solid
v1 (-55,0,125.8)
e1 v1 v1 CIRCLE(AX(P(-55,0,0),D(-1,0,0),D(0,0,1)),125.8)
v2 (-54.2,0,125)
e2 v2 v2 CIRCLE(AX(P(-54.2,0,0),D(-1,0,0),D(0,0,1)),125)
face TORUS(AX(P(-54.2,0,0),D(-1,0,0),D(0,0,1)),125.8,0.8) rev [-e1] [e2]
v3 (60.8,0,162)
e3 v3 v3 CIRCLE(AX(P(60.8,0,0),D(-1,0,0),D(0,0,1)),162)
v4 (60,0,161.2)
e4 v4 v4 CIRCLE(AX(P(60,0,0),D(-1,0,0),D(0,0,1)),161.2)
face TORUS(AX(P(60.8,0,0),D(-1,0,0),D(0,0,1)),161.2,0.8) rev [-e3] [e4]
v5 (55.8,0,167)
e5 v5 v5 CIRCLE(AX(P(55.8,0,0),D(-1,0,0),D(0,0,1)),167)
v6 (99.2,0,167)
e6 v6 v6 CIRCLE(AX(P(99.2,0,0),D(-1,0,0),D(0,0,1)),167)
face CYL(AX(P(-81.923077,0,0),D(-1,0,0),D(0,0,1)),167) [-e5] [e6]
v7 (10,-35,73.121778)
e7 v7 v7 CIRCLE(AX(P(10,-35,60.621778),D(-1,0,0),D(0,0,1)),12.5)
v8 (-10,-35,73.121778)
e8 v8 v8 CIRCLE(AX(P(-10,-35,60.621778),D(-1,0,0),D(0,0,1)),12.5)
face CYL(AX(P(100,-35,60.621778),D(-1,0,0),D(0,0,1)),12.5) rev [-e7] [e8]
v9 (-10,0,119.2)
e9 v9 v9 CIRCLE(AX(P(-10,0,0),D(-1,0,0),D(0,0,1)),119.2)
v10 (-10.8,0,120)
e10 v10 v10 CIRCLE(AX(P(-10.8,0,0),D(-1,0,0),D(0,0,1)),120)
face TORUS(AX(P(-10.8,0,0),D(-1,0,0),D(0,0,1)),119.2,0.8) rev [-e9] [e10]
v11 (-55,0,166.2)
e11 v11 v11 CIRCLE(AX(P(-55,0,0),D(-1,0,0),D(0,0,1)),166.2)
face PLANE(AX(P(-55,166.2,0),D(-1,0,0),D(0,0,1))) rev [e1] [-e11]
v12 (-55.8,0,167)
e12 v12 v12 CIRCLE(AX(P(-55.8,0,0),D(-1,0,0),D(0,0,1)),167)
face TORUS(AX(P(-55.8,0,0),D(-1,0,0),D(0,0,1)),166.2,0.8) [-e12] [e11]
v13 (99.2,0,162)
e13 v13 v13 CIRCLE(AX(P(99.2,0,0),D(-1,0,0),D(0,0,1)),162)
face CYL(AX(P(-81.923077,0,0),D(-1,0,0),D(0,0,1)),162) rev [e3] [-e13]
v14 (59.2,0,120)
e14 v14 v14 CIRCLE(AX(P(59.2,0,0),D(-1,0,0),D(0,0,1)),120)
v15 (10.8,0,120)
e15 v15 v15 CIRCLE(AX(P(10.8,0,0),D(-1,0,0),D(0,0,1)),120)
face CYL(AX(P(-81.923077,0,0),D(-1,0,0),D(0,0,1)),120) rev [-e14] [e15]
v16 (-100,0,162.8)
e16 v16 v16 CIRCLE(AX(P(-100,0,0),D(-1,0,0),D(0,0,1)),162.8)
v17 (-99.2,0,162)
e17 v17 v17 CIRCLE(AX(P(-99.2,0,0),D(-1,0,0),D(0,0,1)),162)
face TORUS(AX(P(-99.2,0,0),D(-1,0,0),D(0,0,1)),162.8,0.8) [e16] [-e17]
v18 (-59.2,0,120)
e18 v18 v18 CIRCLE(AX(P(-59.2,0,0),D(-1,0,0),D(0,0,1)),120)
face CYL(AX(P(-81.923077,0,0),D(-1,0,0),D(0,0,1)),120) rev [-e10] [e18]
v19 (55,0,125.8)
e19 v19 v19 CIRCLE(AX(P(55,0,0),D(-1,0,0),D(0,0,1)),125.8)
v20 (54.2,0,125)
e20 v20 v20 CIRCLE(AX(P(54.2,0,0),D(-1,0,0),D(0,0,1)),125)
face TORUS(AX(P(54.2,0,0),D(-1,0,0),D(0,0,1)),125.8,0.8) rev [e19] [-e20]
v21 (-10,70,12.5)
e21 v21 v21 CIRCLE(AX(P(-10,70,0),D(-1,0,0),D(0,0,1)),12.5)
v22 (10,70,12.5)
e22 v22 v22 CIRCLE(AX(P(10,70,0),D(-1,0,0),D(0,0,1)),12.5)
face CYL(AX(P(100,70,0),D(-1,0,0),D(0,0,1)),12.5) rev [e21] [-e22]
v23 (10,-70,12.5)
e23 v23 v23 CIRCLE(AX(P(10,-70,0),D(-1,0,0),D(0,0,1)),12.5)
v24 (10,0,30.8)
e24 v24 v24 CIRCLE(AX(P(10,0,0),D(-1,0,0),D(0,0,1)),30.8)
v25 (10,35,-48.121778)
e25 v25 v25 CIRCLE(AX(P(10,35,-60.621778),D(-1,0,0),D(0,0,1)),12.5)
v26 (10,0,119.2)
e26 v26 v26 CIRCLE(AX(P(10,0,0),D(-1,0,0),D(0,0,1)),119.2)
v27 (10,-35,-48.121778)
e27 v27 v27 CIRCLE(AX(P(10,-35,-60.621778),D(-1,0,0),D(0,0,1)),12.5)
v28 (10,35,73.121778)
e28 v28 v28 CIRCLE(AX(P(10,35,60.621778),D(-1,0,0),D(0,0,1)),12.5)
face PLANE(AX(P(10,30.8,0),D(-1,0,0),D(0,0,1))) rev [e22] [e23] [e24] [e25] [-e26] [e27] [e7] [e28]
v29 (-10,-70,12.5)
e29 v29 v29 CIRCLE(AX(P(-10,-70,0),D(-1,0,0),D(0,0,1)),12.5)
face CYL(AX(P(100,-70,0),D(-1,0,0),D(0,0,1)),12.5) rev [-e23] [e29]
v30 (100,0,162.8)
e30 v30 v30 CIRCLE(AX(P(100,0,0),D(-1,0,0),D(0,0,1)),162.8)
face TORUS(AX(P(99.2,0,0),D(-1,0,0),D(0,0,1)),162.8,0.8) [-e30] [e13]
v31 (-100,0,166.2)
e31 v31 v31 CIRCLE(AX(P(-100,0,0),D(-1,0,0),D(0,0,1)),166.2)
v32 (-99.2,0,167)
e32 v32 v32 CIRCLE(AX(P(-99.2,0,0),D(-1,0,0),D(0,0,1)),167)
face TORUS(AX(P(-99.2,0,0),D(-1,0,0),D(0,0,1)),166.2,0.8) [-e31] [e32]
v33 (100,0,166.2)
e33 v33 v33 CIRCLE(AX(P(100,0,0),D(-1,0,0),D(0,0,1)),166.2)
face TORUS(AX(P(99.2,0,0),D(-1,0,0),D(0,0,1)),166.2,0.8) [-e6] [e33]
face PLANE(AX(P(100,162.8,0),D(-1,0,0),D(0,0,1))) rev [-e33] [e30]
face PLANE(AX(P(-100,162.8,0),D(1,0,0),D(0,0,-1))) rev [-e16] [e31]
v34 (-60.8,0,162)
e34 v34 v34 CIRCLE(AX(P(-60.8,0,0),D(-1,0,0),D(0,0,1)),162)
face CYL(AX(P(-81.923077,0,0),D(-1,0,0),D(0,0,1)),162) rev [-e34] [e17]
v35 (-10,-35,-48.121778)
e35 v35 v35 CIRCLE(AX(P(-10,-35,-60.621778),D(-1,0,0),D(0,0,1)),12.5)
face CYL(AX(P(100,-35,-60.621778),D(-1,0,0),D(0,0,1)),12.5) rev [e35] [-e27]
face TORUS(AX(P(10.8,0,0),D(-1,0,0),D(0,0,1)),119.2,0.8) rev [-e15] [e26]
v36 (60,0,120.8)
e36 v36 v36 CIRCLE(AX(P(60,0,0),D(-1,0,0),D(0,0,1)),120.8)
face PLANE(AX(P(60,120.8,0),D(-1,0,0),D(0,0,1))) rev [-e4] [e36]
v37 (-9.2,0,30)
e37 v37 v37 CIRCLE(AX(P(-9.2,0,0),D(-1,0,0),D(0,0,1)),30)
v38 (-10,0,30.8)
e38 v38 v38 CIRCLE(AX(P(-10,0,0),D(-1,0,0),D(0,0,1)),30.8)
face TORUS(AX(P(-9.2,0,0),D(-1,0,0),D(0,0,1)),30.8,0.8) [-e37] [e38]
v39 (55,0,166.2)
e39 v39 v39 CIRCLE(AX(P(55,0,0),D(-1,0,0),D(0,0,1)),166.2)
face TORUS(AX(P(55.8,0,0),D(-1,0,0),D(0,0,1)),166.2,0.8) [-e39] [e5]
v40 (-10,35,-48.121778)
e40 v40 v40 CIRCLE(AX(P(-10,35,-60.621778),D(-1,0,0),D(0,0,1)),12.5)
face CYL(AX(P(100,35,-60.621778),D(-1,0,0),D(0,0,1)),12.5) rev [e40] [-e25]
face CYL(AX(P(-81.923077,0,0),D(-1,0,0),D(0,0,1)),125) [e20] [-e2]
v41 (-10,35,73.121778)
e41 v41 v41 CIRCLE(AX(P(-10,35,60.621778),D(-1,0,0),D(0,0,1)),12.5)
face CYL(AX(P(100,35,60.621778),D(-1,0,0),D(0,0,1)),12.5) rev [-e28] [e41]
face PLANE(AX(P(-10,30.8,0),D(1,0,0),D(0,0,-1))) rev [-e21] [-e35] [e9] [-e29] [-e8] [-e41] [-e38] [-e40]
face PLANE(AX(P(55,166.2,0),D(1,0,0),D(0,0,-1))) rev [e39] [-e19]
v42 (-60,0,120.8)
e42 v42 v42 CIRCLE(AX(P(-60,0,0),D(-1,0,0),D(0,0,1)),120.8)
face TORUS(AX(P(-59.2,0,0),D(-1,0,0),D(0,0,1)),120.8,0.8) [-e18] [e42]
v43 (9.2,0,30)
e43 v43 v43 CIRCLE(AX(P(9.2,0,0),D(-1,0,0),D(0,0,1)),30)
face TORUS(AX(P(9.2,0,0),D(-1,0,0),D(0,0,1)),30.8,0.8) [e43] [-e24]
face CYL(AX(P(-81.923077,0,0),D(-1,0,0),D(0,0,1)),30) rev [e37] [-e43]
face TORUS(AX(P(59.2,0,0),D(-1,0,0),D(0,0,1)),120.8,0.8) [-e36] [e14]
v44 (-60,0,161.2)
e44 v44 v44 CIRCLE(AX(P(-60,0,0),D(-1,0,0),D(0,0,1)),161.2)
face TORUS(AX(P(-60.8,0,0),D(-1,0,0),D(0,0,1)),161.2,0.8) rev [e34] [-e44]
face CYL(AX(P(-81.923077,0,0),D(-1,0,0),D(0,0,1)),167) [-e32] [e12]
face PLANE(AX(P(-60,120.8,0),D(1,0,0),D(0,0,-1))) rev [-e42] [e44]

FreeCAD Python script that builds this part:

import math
import FreeCAD as App
import Part
import Sketcher
Q = App.Units.Quantity

doc = App.newDocument("Part")
body = doc.addObject("PartDesign::Body", "Body")

sketch1 = body.newObject("Sketcher::SketchObject", "Sketch")
sketch1.AttachmentSupport = (doc.getObject("XY_Plane"), [""])
sketch1.MapMode = "FlatFace"
sketch1.addGeometry(Part.LineSegment(App.Vector(-9.2, 30, 0), App.Vector(9.2, 30, 0)), False)
sketch1.addGeometry(Part.ArcOfCircle(Part.Circle(App.Vector(9.2, 30.8, 0), App.Vector(0, 0, 1), 0.8), math.radians(-90), math.radians(0)), False)
sketch1.addGeometry(Part.LineSegment(App.Vector(10, 30.8, 0), App.Vector(10, 119.2, 0)), False)
sketch1.addGeometry(Part.ArcOfCircle(Part.Circle(App.Vector(10.8, 119.2, 0), App.Vector(0, 0, 1), 0.8), math.radians(90), math.radians(180)), False)
sketch1.addGeometry(Part.LineSegment(App.Vector(10.8, 120, 0), App.Vector(59.2, 120, 0)), False)
sketch1.addGeometry(Part.ArcOfCircle(Part.Circle(App.Vector(59.2, 120.8, 0), App.Vector(0, 0, 1), 0.8), math.radians(-90), math.radians(0)), False)
sketch1.addGeometry(Part.LineSegment(App.Vector(60, 120.8, 0), App.Vector(60, 161.2, 0)), False)
sketch1.addGeometry(Part.ArcOfCircle(Part.Circle(App.Vector(60.8, 161.2, 0), App.Vector(0, 0, 1), 0.8), math.radians(90), math.radians(180)), False)
sketch1.addGeometry(Part.LineSegment(App.Vector(60.8, 162, 0), App.Vector(99.2, 162, 0)), False)
sketch1.addGeometry(Part.ArcOfCircle(Part.Circle(App.Vector(99.2, 162.8, 0), App.Vector(0, 0, 1), 0.8), math.radians(-90), math.radians(0)), False)
sketch1.addGeometry(Part.LineSegment(App.Vector(100, 162.8, 0), App.Vector(100, 166.2, 0)), False)
sketch1.addGeometry(Part.ArcOfCircle(Part.Circle(App.Vector(99.2, 166.2, 0), App.Vector(0, 0, 1), 0.8), math.radians(0), math.radians(90)), False)
sketch1.addGeometry(Part.LineSegment(App.Vector(99.2, 167, 0), App.Vector(55.8, 167, 0)), False)
sketch1.addGeometry(Part.ArcOfCircle(Part.Circle(App.Vector(55.8, 166.2, 0), App.Vector(0, 0, 1), 0.8), math.radians(90), math.radians(180)), False)
sketch1.addGeometry(Part.LineSegment(App.Vector(55, 166.2, 0), App.Vector(55, 125.8, 0)), False)
sketch1.addGeometry(Part.ArcOfCircle(Part.Circle(App.Vector(54.2, 125.8, 0), App.Vector(0, 0, 1), 0.8), math.radians(-90), math.radians(0)), False)
sketch1.addGeometry(Part.LineSegment(App.Vector(54.2, 125, 0), App.Vector(-54.2, 125, 0)), False)
sketch1.addGeometry(Part.ArcOfCircle(Part.Circle(App.Vector(-54.2, 125.8, 0), App.Vector(0, 0, 1), 0.8), math.radians(180), math.radians(270)), False)
sketch1.addGeometry(Part.LineSegment(App.Vector(-55, 125.8, 0), App.Vector(-55, 166.2, 0)), False)
sketch1.addGeometry(Part.ArcOfCircle(Part.Circle(App.Vector(-55.8, 166.2, 0), App.Vector(0, 0, 1), 0.8), math.radians(0), math.radians(90)), False)
sketch1.addGeometry(Part.LineSegment(App.Vector(-55.8, 167, 0), App.Vector(-99.2, 167, 0)), False)
sketch1.addGeometry(Part.ArcOfCircle(Part.Circle(App.Vector(-99.2, 166.2, 0), App.Vector(0, 0, 1), 0.8), math.radians(90), math.radians(180)), False)
sketch1.addGeometry(Part.LineSegment(App.Vector(-100, 166.2, 0), App.Vector(-100, 162.8, 0)), False)
sketch1.addGeometry(Part.ArcOfCircle(Part.Circle(App.Vector(-99.2, 162.8, 0), App.Vector(0, 0, 1), 0.8), math.radians(180), math.radians(270)), False)
sketch1.addGeometry(Part.LineSegment(App.Vector(-99.2, 162, 0), App.Vector(-60.8, 162, 0)), False)
sketch1.addGeometry(Part.ArcOfCircle(Part.Circle(App.Vector(-60.8, 161.2, 0), App.Vector(0, 0, 1), 0.8), math.radians(0), math.radians(90)), False)
sketch1.addGeometry(Part.LineSegment(App.Vector(-60, 161.2, 0), App.Vector(-60, 120.8, 0)), False)
sketch1.addGeometry(Part.ArcOfCircle(Part.Circle(App.Vector(-59.2, 120.8, 0), App.Vector(0, 0, 1), 0.8), math.radians(180), math.radians(270)), False)
sketch1.addGeometry(Part.LineSegment(App.Vector(-59.2, 120, 0), App.Vector(-10.8, 120, 0)), False)
sketch1.addGeometry(Part.ArcOfCircle(Part.Circle(App.Vector(-10.8, 119.2, 0), App.Vector(0, 0, 1), 0.8), math.radians(0), math.radians(90)), False)
sketch1.addGeometry(Part.LineSegment(App.Vector(-10, 119.2, 0), App.Vector(-10, 30.8, 0)), False)
sketch1.addGeometry(Part.ArcOfCircle(Part.Circle(App.Vector(-9.2, 30.8, 0), App.Vector(0, 0, 1), 0.8), math.radians(180), math.radians(270)), False)
sketch1.addConstraint(Sketcher.Constraint("Tangent", 0, 2, 1, 1))
sketch1.addConstraint(Sketcher.Constraint("Tangent", 1, 2, 2, 1))
sketch1.addConstraint(Sketcher.Constraint("Tangent", 2, 2, 3, 2))
sketch1.addConstraint(Sketcher.Constraint("Tangent", 3, 1, 4, 1))
sketch1.addConstraint(Sketcher.Constraint("Tangent", 4, 2, 5, 1))
sketch1.addConstraint(Sketcher.Constraint("Tangent", 5, 2, 6, 1))
sketch1.addConstraint(Sketcher.Constraint("Tangent", 6, 2, 7, 2))
sketch1.addConstraint(Sketcher.Constraint("Tangent", 7, 1, 8, 1))
sketch1.addConstraint(Sketcher.Constraint("Tangent", 8, 2, 9, 1))
sketch1.addConstraint(Sketcher.Constraint("Tangent", 9, 2, 10, 1))
sketch1.addConstraint(Sketcher.Constraint("Tangent", 10, 2, 11, 1))
sketch1.addConstraint(Sketcher.Constraint("Tangent", 11, 2, 12, 1))
sketch1.addConstraint(Sketcher.Constraint("Tangent", 12, 2, 13, 1))
sketch1.addConstraint(Sketcher.Constraint("Tangent", 13, 2, 14, 1))
sketch1.addConstraint(Sketcher.Constraint("Tangent", 14, 2, 15, 2))
sketch1.addConstraint(Sketcher.Constraint("Tangent", 15, 1, 16, 1))
sketch1.addConstraint(Sketcher.Constraint("Tangent", 16, 2, 17, 2))
sketch1.addConstraint(Sketcher.Constraint("Tangent", 17, 1, 18, 1))
sketch1.addConstraint(Sketcher.Constraint("Tangent", 18, 2, 19, 1))
sketch1.addConstraint(Sketcher.Constraint("Tangent", 19, 2, 20, 1))
sketch1.addConstraint(Sketcher.Constraint("Tangent", 20, 2, 21, 1))
sketch1.addConstraint(Sketcher.Constraint("Tangent", 21, 2, 22, 1))
sketch1.addConstraint(Sketcher.Constraint("Tangent", 22, 2, 23, 1))
sketch1.addConstraint(Sketcher.Constraint("Tangent", 23, 2, 24, 1))
sketch1.addConstraint(Sketcher.Constraint("Tangent", 24, 2, 25, 2))
sketch1.addConstraint(Sketcher.Constraint("Tangent", 25, 1, 26, 1))
sketch1.addConstraint(Sketcher.Constraint("Tangent", 26, 2, 27, 1))
sketch1.addConstraint(Sketcher.Constraint("Tangent", 27, 2, 28, 1))
sketch1.addConstraint(Sketcher.Constraint("Tangent", 28, 2, 29, 2))
sketch1.addConstraint(Sketcher.Constraint("Tangent", 29, 1, 30, 1))
sketch1.addConstraint(Sketcher.Constraint("Tangent", 30, 2, 31, 1))
sketch1.addConstraint(Sketcher.Constraint("Tangent", 31, 2, 0, 1))
sketch1.addConstraint(Sketcher.Constraint("Horizontal", 0))
sketch1.addConstraint(Sketcher.Constraint("Vertical", 2))
sketch1.addConstraint(Sketcher.Constraint("Horizontal", 4))
sketch1.addConstraint(Sketcher.Constraint("Vertical", 6))
sketch1.addConstraint(Sketcher.Constraint("Horizontal", 8))
sketch1.addConstraint(Sketcher.Constraint("Vertical", 10))
sketch1.addConstraint(Sketcher.Constraint("Horizontal", 12))
sketch1.addConstraint(Sketcher.Constraint("Vertical", 14))
sketch1.addConstraint(Sketcher.Constraint("Horizontal", 16))
sketch1.addConstraint(Sketcher.Constraint("Vertical", 18))
sketch1.addConstraint(Sketcher.Constraint("Horizontal", 20))
sketch1.addConstraint(Sketcher.Constraint("Vertical", 22))
sketch1.addConstraint(Sketcher.Constraint("Horizontal", 24))
sketch1.addConstraint(Sketcher.Constraint("Vertical", 26))
sketch1.addConstraint(Sketcher.Constraint("Horizontal", 28))
sketch1.addConstraint(Sketcher.Constraint("Vertical", 30))
sketch1.addConstraint(Sketcher.Constraint("Equal", 1, 3))
sketch1.addConstraint(Sketcher.Constraint("Equal", 3, 5))
sketch1.addConstraint(Sketcher.Constraint("Equal", 5, 7))
sketch1.addConstraint(Sketcher.Constraint("Equal", 7, 9))
sketch1.addConstraint(Sketcher.Constraint("Equal", 9, 11))
sketch1.addConstraint(Sketcher.Constraint("Equal", 11, 13))
sketch1.addConstraint(Sketcher.Constraint("Equal", 13, 15))
sketch1.addConstraint(Sketcher.Constraint("Equal", 15, 17))
sketch1.addConstraint(Sketcher.Constraint("Equal", 17, 19))
sketch1.addConstraint(Sketcher.Constraint("Equal", 19, 21))
sketch1.addConstraint(Sketcher.Constraint("Equal", 21, 23))
sketch1.addConstraint(Sketcher.Constraint("Equal", 23, 25))
sketch1.addConstraint(Sketcher.Constraint("Equal", 25, 27))
sketch1.addConstraint(Sketcher.Constraint("Equal", 27, 29))
sketch1.addConstraint(Sketcher.Constraint("Equal", 29, 31))
sketch1.addConstraint(Sketcher.Constraint("Symmetric", 13, 3, 19, 3, -2))
sketch1.addConstraint(Sketcher.Constraint("Symmetric", 9, 3, 23, 3, -2))
sketch1.addConstraint(Sketcher.Constraint("Symmetric", 5, 3, 27, 3, -2))
sketch1.addConstraint(Sketcher.Constraint("Equal", 4, 28))
sketch1.addConstraint(Sketcher.Constraint("Equal", 6, 14))
sketch1.addConstraint(Sketcher.Constraint("Radius", 1, Q("0.8 mm")))
sketch1.addConstraint(Sketcher.Constraint("DistanceX", 0, 1, 0, 2, Q("18.4 mm")))
sketch1.addConstraint(Sketcher.Constraint("DistanceX", 4, 1, 4, 2, Q("48.4 mm")))
sketch1.addConstraint(Sketcher.Constraint("DistanceX", 8, 1, 8, 2, Q("38.4 mm")))
sketch1.addConstraint(Sketcher.Constraint("DistanceX", 12, 2, 12, 1, Q("43.4 mm")))
sketch1.addConstraint(Sketcher.Constraint("DistanceY", 2, 1, 2, 2, Q("88.4 mm")))
sketch1.addConstraint(Sketcher.Constraint("DistanceY", 6, 1, 6, 2, Q("40.4 mm")))
sketch1.addConstraint(Sketcher.Constraint("DistanceY", 10, 1, 10, 2, Q("3.4 mm")))
sketch1.addConstraint(Sketcher.Constraint("DistanceY", -1, 1, 0, 2, Q("30 mm")))
revolution = body.newObject("PartDesign::Revolution", "Revolution")
revolution.Profile = sketch1
revolution.ReferenceAxis = (sketch1, ["H_Axis"])
revolution.Angle = 360

sketch2 = body.newObject("Sketcher::SketchObject", "Sketch001")
sketch2.AttachmentSupport = (doc.getObject("YZ_Plane"), [""])
sketch2.MapMode = "FlatFace"
sketch2.AttachmentOffset = App.Placement(App.Vector(0, 0, -10), App.Rotation())
sketch2.addGeometry(Part.Circle(App.Vector(70, 0, 0), App.Vector(0, 0, 1), 12), False)
sketch2.addGeometry(Part.Circle(App.Vector(35, 61, 0), App.Vector(0, 0, 1), 12), False)
sketch2.addGeometry(Part.Circle(App.Vector(-35, 61, 0), App.Vector(0, 0, 1), 12), False)
sketch2.addGeometry(Part.Circle(App.Vector(-70, 0, 0), App.Vector(0, 0, 1), 12), False)
sketch2.addGeometry(Part.Circle(App.Vector(-35, -61, 0), App.Vector(0, 0, 1), 12), False)
sketch2.addGeometry(Part.Circle(App.Vector(35, -61, 0), App.Vector(0, 0, 1), 12), False)
sketch2.addConstraint(Sketcher.Constraint("Equal", 0, 1))
sketch2.addConstraint(Sketcher.Constraint("Equal", 1, 2))
sketch2.addConstraint(Sketcher.Constraint("Equal", 2, 3))
sketch2.addConstraint(Sketcher.Constraint("Equal", 3, 4))
sketch2.addConstraint(Sketcher.Constraint("Equal", 4, 5))
sketch2.addConstraint(Sketcher.Constraint("Symmetric", 0, 3, 3, 3, -1, 1))
sketch2.addConstraint(Sketcher.Constraint("Symmetric", 1, 3, 4, 3, -1, 1))
sketch2.addConstraint(Sketcher.Constraint("Symmetric", 2, 3, 5, 3, -1, 1))
sketch2.addConstraint(Sketcher.Constraint("Symmetric", 1, 3, 2, 3, -2))
sketch2.addConstraint(Sketcher.Constraint("PointOnObject", 0, 3, -1))
sketch2.addConstraint(Sketcher.Constraint("Diameter", 0, Q("25 mm")))
sketch2.addConstraint(Sketcher.Constraint("DistanceX", -1, 1, 0, 3, Q("70 mm")))
sketch2.addConstraint(Sketcher.Constraint("DistanceX", -1, 1, 1, 3, Q("35 mm")))
sketch2.addConstraint(Sketcher.Constraint("DistanceY", -1, 1, 1, 3, Q("60.621778 mm")))
pocket1 = body.newObject("PartDesign::Pocket", "Pocket")
pocket1.Profile = sketch2
pocket1.Type = "ThroughAll"
pocket1.Reversed = True

doc.recompute()
